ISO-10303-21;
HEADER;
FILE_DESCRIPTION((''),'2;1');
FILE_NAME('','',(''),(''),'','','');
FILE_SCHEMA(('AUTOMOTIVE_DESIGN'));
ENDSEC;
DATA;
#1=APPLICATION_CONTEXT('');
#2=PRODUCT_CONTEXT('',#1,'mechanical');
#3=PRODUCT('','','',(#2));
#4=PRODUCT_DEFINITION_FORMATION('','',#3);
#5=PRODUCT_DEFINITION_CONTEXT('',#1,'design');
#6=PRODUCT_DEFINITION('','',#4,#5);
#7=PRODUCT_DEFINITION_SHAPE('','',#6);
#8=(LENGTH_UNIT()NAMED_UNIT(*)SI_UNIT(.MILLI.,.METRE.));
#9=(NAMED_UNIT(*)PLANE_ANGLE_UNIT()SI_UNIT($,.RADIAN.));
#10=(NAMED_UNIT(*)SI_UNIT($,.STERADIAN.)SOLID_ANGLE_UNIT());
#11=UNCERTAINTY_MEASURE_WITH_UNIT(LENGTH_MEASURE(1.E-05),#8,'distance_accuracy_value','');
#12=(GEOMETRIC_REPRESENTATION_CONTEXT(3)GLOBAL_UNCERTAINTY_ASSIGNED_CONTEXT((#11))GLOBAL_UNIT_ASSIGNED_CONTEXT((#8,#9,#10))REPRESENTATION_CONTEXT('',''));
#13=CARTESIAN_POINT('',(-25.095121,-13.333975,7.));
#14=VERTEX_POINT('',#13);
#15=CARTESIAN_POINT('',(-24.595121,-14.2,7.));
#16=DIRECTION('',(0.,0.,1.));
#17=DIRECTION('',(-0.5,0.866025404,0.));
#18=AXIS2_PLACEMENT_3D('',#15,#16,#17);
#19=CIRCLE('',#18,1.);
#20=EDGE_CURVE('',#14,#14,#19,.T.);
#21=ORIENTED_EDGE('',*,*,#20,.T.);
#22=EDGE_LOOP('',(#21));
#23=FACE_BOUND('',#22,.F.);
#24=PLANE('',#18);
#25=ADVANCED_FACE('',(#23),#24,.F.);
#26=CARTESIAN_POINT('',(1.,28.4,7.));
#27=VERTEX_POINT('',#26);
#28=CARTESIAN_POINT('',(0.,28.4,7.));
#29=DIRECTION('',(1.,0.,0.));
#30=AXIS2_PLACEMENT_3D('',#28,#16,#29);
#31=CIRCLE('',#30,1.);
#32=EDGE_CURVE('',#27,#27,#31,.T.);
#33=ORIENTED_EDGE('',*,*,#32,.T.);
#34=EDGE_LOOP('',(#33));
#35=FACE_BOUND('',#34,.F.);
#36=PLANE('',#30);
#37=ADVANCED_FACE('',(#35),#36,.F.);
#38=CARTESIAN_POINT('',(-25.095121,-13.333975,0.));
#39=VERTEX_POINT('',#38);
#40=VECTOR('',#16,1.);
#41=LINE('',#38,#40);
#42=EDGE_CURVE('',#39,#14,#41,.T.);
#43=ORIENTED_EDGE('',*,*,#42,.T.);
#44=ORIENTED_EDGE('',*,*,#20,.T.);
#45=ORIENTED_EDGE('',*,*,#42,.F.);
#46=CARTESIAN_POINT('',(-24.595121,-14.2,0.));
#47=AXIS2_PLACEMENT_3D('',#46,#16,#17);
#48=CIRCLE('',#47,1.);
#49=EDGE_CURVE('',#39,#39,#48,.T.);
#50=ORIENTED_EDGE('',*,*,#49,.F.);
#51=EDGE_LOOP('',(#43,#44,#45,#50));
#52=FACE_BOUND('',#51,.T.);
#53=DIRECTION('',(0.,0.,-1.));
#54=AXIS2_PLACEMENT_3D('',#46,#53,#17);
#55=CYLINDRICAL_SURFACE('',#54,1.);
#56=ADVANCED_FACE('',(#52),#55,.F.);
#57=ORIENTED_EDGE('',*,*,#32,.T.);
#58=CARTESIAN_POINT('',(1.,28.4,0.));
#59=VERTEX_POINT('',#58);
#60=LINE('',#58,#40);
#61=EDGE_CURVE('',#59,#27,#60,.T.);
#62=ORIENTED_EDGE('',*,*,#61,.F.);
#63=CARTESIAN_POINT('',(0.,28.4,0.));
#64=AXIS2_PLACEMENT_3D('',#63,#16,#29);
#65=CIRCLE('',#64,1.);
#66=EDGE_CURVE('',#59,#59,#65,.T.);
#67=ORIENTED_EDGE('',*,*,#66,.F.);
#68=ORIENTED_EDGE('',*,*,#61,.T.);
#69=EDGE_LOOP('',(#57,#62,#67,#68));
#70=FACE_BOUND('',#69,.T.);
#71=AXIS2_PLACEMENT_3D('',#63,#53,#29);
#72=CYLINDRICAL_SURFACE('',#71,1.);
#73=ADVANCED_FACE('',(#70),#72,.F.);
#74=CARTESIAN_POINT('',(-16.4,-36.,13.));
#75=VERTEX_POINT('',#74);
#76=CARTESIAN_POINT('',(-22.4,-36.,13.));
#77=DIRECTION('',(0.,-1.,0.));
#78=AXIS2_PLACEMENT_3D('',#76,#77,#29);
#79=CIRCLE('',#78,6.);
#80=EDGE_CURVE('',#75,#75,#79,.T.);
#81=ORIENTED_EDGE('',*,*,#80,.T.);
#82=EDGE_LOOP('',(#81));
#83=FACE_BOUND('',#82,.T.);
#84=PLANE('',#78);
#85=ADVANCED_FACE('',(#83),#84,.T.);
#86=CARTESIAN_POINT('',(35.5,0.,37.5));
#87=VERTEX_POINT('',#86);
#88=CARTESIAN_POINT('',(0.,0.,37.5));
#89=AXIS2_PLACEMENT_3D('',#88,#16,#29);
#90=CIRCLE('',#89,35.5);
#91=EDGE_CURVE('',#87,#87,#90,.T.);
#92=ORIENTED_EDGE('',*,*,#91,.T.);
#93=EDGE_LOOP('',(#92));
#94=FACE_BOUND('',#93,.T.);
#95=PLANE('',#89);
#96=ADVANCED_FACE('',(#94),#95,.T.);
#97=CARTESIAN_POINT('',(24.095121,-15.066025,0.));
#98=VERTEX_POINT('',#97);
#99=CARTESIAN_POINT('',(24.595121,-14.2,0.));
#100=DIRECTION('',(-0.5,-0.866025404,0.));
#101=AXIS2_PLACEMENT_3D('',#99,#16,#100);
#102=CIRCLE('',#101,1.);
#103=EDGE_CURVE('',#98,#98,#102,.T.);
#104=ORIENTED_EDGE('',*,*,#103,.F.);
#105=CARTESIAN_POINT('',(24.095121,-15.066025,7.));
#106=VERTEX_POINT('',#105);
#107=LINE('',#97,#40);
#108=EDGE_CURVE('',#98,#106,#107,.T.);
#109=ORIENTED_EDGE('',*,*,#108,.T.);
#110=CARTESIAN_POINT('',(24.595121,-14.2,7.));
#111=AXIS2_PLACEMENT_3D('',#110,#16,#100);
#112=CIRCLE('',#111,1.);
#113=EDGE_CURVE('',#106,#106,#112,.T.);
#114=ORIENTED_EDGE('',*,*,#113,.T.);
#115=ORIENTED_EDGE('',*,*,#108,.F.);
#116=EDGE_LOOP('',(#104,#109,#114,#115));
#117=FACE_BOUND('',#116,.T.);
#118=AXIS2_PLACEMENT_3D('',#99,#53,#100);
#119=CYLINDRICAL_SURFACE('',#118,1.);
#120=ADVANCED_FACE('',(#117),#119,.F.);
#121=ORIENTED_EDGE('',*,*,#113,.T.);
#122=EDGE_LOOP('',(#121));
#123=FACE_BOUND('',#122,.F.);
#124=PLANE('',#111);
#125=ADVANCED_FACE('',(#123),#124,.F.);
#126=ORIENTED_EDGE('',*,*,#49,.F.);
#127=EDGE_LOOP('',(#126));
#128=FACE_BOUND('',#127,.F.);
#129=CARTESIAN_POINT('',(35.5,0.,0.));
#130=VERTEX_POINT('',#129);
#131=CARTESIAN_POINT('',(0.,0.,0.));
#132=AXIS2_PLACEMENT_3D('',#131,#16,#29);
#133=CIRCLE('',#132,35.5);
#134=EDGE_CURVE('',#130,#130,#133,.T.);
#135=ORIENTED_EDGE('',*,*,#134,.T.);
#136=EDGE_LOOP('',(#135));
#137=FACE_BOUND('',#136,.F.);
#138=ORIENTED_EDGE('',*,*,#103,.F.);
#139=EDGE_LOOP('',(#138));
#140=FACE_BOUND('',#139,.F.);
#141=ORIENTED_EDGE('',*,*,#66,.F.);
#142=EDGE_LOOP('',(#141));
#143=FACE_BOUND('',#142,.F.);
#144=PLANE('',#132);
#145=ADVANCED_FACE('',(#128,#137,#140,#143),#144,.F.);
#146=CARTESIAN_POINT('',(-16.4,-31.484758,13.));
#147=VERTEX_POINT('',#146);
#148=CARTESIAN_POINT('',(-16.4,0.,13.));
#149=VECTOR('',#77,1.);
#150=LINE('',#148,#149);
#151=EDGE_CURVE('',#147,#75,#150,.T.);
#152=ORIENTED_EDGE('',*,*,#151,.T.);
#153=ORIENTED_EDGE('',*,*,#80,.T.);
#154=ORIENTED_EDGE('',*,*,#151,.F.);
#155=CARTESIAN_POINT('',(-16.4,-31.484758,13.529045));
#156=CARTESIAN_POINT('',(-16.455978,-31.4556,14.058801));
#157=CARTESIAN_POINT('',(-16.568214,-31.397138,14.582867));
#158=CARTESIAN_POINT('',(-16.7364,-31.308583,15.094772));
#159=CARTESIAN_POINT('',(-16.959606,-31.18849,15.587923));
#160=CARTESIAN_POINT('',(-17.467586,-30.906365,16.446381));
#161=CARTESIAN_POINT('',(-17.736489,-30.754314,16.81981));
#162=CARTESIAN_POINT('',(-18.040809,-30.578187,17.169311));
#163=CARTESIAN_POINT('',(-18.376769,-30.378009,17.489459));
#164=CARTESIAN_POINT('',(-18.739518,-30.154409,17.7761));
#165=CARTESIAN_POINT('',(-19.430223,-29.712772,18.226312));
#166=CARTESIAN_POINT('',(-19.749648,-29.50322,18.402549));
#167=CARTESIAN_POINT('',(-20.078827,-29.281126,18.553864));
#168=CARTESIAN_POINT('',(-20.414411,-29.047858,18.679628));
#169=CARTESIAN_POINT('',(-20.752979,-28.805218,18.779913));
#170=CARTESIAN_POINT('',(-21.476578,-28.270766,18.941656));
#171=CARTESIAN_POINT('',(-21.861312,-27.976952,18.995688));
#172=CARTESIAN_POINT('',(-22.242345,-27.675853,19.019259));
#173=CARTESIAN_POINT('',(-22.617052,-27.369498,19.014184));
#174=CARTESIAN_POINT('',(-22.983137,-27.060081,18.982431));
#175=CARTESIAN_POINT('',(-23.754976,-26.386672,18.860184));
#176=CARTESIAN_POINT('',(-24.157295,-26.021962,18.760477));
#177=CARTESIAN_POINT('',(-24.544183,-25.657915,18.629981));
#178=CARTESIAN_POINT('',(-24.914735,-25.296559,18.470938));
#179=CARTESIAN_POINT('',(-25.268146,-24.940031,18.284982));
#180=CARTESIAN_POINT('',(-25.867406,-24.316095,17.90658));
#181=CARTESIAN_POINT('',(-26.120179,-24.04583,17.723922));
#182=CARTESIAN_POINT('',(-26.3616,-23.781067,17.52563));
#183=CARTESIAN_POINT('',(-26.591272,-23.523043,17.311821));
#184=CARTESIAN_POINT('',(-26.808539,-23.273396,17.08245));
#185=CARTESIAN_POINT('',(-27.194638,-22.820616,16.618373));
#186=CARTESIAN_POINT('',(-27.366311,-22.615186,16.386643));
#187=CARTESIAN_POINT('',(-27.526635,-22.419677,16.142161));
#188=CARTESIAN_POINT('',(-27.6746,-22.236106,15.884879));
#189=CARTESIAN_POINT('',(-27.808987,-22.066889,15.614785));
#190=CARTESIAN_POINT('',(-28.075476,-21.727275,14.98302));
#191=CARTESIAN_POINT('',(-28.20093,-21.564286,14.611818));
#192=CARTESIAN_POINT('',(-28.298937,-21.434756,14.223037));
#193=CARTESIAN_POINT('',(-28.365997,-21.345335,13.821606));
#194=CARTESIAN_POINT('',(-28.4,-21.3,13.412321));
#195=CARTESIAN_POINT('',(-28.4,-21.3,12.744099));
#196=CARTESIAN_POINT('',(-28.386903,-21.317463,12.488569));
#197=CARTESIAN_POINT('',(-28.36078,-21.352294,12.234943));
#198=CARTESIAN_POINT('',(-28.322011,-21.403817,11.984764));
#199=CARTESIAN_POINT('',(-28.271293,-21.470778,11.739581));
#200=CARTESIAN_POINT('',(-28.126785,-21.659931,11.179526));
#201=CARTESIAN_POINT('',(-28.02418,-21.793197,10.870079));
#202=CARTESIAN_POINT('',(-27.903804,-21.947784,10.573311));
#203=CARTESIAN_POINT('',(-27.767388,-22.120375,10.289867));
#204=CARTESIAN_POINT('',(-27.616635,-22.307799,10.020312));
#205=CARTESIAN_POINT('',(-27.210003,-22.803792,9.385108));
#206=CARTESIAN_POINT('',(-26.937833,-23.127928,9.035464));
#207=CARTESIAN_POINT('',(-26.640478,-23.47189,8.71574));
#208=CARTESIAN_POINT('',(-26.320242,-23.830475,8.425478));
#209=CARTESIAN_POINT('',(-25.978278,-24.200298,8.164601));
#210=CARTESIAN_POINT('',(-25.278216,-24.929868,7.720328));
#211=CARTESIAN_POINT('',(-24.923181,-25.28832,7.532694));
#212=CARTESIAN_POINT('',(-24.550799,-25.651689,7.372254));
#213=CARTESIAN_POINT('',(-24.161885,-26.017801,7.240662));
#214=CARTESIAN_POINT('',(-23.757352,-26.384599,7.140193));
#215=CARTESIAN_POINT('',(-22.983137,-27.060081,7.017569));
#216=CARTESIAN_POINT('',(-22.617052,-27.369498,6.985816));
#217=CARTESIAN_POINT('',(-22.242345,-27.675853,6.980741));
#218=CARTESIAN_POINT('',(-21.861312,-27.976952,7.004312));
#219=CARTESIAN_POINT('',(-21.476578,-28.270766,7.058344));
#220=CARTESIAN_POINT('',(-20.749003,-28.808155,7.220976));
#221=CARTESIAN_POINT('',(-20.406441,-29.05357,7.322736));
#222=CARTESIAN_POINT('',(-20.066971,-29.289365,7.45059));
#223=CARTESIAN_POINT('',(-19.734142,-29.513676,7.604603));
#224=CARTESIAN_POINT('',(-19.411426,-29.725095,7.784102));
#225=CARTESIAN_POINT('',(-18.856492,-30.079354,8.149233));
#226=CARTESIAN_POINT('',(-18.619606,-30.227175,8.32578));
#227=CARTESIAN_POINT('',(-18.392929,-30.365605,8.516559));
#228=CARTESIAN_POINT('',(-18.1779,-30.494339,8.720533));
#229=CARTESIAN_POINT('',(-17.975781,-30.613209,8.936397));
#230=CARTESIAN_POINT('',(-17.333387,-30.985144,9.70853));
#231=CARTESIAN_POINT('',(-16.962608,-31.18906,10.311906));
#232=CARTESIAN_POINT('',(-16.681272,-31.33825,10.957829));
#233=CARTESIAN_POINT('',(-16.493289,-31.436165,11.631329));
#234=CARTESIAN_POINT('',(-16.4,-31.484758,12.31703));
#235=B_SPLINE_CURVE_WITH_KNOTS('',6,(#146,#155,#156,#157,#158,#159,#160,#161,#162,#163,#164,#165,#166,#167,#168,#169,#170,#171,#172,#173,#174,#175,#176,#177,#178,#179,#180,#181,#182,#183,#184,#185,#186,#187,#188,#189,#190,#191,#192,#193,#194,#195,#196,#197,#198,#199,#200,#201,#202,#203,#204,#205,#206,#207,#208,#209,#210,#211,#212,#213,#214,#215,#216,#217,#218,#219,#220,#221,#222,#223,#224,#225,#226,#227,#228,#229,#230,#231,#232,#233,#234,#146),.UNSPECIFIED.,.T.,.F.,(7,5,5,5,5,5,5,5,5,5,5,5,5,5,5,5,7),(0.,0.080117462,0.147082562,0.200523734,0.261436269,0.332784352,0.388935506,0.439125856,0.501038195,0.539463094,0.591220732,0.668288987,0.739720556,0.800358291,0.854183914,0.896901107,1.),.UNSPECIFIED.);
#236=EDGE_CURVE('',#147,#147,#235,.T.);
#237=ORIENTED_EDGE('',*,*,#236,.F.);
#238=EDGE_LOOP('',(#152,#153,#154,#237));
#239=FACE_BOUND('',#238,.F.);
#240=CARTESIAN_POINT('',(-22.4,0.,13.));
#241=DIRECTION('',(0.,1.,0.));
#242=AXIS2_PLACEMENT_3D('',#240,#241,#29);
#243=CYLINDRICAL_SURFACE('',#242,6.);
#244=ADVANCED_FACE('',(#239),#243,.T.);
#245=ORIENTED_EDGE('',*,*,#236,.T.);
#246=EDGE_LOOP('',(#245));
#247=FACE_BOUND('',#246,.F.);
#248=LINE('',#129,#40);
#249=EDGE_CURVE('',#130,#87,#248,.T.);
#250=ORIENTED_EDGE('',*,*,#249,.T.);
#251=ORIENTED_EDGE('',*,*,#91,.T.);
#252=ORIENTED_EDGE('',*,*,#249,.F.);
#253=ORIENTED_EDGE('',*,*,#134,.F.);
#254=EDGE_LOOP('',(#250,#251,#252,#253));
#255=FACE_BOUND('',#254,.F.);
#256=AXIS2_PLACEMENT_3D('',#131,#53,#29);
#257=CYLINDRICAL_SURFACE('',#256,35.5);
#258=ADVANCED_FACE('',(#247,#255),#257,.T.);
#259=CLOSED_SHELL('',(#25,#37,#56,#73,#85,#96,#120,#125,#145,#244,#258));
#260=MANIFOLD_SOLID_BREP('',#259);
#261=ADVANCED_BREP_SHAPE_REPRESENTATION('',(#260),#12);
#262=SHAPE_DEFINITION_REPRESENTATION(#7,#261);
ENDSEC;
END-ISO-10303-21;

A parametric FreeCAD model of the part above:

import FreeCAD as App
import Part
import Sketcher

V = App.Vector

doc = App.newDocument("Part")
body = doc.addObject("PartDesign::Body", "Body")

# Sketch on XY plane
sketch1 = body.newObject("Sketcher::SketchObject", "Sketch")
sketch1.AttachmentSupport = (doc.getObject("XY_Plane"), [""])
sketch1.MapMode = "FlatFace"
sketch1.addGeometry(Part.Circle(V(0, 28.4, 0), V(0, 0, 1), 1), False)
sketch1.addConstraint(Sketcher.Constraint("PointOnObject", 0, 3, -2))
sketch1.addConstraint(Sketcher.Constraint("Diameter", 0, 2.0))
sketch1.addConstraint(Sketcher.Constraint("DistanceY", -1, 1, 0, 3, 28.4))
pad1 = body.newObject("PartDesign::Pad", "Pad")
pad1.Profile = sketch1
pad1.Length = 7
body2 = doc.addObject("PartDesign::Body", "Body001")
body2.AllowCompound = True
doc.recompute()

body2.BaseFeature = body
doc.recompute()

body3 = doc.addObject("PartDesign::Body", "Body002")
body3.BaseFeature = body
body3.Placement = App.Placement(V(0, 0, 0), App.Rotation(V(0, 0, 1), 120))
boolean = body2.newObject("PartDesign::Boolean", "Boolean")
boolean.Type = "Fuse"
boolean.addObjects([body3])
doc.recompute()

body.Placement = App.Placement(V(0, 0, 0), App.Rotation(V(0, 0, 1), 240))
boolean2 = body2.newObject("PartDesign::Boolean", "Boolean001")
boolean2.Type = "Fuse"
boolean2.addObjects([body])
body4 = doc.addObject("PartDesign::Body", "Body003")

# Sketch on XZ plane
sketch2 = body4.newObject("Sketcher::SketchObject", "Sketch001")
sketch2.AttachmentSupport = (doc.getObject("XZ_Plane003"), [""])
sketch2.MapMode = "FlatFace"
sketch2.addGeometry(Part.Circle(V(-22, 13, 0), V(0, 0, 1), 6), False)
sketch2.addConstraint(Sketcher.Constraint("Diameter", 0, 12.0))
sketch2.addConstraint(Sketcher.Constraint("DistanceY", -1, 1, 0, 3, 13.0))
sketch2.addConstraint(Sketcher.Constraint("DistanceX", 0, 3, -1, 1, 22.4))
pad2 = body4.newObject("PartDesign::Pad", "Pad001")
pad2.Profile = sketch2
pad2.Length = 36
body5 = doc.addObject("PartDesign::Body", "Body004")

# Sketch on XY plane
sketch3 = body5.newObject("Sketcher::SketchObject", "Sketch002")
sketch3.AttachmentSupport = (doc.getObject("XY_Plane004"), [""])
sketch3.MapMode = "FlatFace"
sketch3.addGeometry(Part.Circle(V(0, 0, 0), V(0, 0, 1), 36), False)
sketch3.addConstraint(Sketcher.Constraint("Coincident", 0, 3, -1, 1))
sketch3.addConstraint(Sketcher.Constraint("Diameter", 0, 71.0))
pad3 = body5.newObject("PartDesign::Pad", "Pad002")
pad3.Profile = sketch3
pad3.Length = 37.5
doc.recompute()

boolean3 = body5.newObject("PartDesign::Boolean", "Boolean002")
boolean3.Type = "Fuse"
boolean3.addObjects([body4])
doc.recompute()

boolean4 = body5.newObject("PartDesign::Boolean", "Boolean003")
boolean4.Type = "Cut"
boolean4.addObjects([body2])

doc.recompute()
